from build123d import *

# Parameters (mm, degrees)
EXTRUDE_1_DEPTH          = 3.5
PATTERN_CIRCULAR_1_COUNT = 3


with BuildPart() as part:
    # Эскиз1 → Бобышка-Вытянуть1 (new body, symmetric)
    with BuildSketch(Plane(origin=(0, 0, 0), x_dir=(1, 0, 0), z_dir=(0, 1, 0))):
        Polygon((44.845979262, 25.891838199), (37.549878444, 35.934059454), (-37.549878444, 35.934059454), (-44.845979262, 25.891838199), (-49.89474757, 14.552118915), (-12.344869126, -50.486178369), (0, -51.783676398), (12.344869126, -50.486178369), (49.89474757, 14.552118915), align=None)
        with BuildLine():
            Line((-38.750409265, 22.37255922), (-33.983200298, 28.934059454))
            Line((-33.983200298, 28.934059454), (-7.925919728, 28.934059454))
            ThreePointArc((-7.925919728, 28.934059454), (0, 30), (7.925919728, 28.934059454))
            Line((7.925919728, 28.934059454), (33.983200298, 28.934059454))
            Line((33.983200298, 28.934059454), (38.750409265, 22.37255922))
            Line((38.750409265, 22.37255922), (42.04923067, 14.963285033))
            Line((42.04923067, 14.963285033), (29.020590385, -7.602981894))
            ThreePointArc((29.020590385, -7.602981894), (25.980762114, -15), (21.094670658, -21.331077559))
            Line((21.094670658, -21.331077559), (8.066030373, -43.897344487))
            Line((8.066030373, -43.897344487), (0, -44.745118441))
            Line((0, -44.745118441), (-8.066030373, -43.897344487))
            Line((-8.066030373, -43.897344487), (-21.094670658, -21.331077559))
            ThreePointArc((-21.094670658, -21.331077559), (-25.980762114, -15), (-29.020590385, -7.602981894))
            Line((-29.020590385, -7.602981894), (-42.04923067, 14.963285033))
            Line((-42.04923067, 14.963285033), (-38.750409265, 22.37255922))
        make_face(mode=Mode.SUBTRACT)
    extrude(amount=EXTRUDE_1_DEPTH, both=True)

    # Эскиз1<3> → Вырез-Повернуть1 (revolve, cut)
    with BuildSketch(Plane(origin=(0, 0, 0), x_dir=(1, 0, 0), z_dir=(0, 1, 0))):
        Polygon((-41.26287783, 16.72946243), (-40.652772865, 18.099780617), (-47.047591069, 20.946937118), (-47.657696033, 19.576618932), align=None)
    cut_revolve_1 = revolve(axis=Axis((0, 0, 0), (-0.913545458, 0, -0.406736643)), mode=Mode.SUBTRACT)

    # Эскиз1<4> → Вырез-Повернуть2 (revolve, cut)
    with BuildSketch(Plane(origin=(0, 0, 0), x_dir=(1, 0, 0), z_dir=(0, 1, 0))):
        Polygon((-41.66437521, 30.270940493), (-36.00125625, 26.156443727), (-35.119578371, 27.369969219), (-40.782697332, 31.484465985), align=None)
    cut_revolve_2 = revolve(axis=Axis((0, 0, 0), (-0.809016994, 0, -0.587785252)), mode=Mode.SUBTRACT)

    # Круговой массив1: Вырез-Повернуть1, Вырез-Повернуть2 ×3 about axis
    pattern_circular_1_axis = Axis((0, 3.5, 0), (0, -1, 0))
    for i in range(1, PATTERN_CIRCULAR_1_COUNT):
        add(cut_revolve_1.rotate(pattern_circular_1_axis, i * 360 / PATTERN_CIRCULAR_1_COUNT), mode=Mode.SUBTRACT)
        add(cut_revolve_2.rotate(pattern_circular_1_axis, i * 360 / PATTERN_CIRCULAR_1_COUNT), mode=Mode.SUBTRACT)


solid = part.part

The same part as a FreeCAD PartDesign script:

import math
import FreeCAD as App
import Part
import Sketcher

V = App.Vector
Q = App.Units.Quantity

doc = App.newDocument("Part")
body = doc.addObject("PartDesign::Body", "Body")

# Sketch on XZ plane
sketch1 = body.newObject("Sketcher::SketchObject", "Sketch")
sketch1.AttachmentSupport = (doc.getObject("XZ_Plane"), [""])
sketch1.MapMode = "FlatFace"
sketch1.addGeometry(Part.LineSegment(V(45, -26, 0), V(38, -36, 0)), False)
sketch1.addGeometry(Part.LineSegment(V(38, -36, 0), V(-38, -36, 0)), False)
sketch1.addGeometry(Part.LineSegment(V(-38, -36, 0), V(-45, -26, 0)), False)
sketch1.addGeometry(Part.LineSegment(V(-45, -26, 0), V(-50, -15, 0)), False)
sketch1.addGeometry(Part.LineSegment(V(-50, -15, 0), V(-12, 50, 0)), False)
sketch1.addGeometry(Part.LineSegment(V(-12, 50, 0), V(0, 52, 0)), False)
sketch1.addGeometry(Part.LineSegment(V(0, 52, 0), V(12, 50, 0)), False)
sketch1.addGeometry(Part.LineSegment(V(12, 50, 0), V(50, -15, 0)), False)
sketch1.addGeometry(Part.LineSegment(V(50, -15, 0), V(45, -26, 0)), False)
sketch1.addGeometry(Part.LineSegment(V(-42, -15, 0), V(-39, -22, 0)), False)
sketch1.addGeometry(Part.LineSegment(V(-39, -22, 0), V(-34, -29, 0)), False)
sketch1.addGeometry(Part.LineSegment(V(-34, -29, 0), V(-8, -29, 0)), False)
sketch1.addGeometry(Part.ArcOfCircle(Part.Circle(V(0, 0, 0), V(0, 0, 1), 30), math.radians(-105), math.radians(-75)), False)
sketch1.addGeometry(Part.LineSegment(V(8, -29, 0), V(34, -29, 0)), False)
sketch1.addGeometry(Part.LineSegment(V(34, -29, 0), V(39, -22, 0)), False)
sketch1.addGeometry(Part.LineSegment(V(39, -22, 0), V(42, -15, 0)), False)
sketch1.addGeometry(Part.LineSegment(V(42, -15, 0), V(29, 8, 0)), False)
sketch1.addGeometry(Part.ArcOfCircle(Part.Circle(V(0, 0, 0), V(0, 0, 1), 30), math.radians(15), math.radians(45)), False)
sketch1.addGeometry(Part.LineSegment(V(21, 21, 0), V(8, 44, 0)), False)
sketch1.addGeometry(Part.LineSegment(V(8, 44, 0), V(0, 45, 0)), False)
sketch1.addGeometry(Part.LineSegment(V(0, 45, 0), V(-8, 44, 0)), False)
sketch1.addGeometry(Part.LineSegment(V(-8, 44, 0), V(-21, 21, 0)), False)
sketch1.addGeometry(Part.ArcOfCircle(Part.Circle(V(0, 0, 0), V(0, 0, 1), 30), math.radians(135), math.radians(165)), False)
sketch1.addGeometry(Part.LineSegment(V(-29, 8, 0), V(-42, -15, 0)), False)
sketch1.addConstraint(Sketcher.Constraint("Coincident", 0, 2, 1, 1))
sketch1.addConstraint(Sketcher.Constraint("Coincident", 1, 2, 2, 1))
sketch1.addConstraint(Sketcher.Constraint("Coincident", 2, 2, 3, 1))
sketch1.addConstraint(Sketcher.Constraint("Coincident", 3, 2, 4, 1))
sketch1.addConstraint(Sketcher.Constraint("Coincident", 4, 2, 5, 1))
sketch1.addConstraint(Sketcher.Constraint("Coincident", 5, 2, 6, 1))
sketch1.addConstraint(Sketcher.Constraint("Coincident", 6, 2, 7, 1))
sketch1.addConstraint(Sketcher.Constraint("Coincident", 7, 2, 8, 1))
sketch1.addConstraint(Sketcher.Constraint("Coincident", 8, 2, 0, 1))
sketch1.addConstraint(Sketcher.Constraint("Coincident", 9, 2, 10, 1))
sketch1.addConstraint(Sketcher.Constraint("Coincident", 10, 2, 11, 1))
sketch1.addConstraint(Sketcher.Constraint("Coincident", 11, 2, 12, 1))
sketch1.addConstraint(Sketcher.Constraint("Coincident", 12, 2, 13, 1))
sketch1.addConstraint(Sketcher.Constraint("Coincident", 13, 2, 14, 1))
sketch1.addConstraint(Sketcher.Constraint("Coincident", 14, 2, 15, 1))
sketch1.addConstraint(Sketcher.Constraint("Coincident", 15, 2, 16, 1))
sketch1.addConstraint(Sketcher.Constraint("Coincident", 16, 2, 17, 1))
sketch1.addConstraint(Sketcher.Constraint("Coincident", 17, 2, 18, 1))
sketch1.addConstraint(Sketcher.Constraint("Coincident", 18, 2, 19, 1))
sketch1.addConstraint(Sketcher.Constraint("Coincident", 19, 2, 20, 1))
sketch1.addConstraint(Sketcher.Constraint("Coincident", 20, 2, 21, 1))
sketch1.addConstraint(Sketcher.Constraint("Coincident", 21, 2, 22, 1))
sketch1.addConstraint(Sketcher.Constraint("Coincident", 22, 2, 23, 1))
sketch1.addConstraint(Sketcher.Constraint("Coincident", 23, 2, 9, 1))
sketch1.addConstraint(Sketcher.Constraint("Horizontal", 1))
sketch1.addConstraint(Sketcher.Constraint("Horizontal", 11))
sketch1.addConstraint(Sketcher.Constraint("Horizontal", 13))
sketch1.addConstraint(Sketcher.Constraint("Coincident", 12, 3, -1, 1))
sketch1.addConstraint(Sketcher.Constraint("Coincident", 17, 3, -1, 1))
sketch1.addConstraint(Sketcher.Constraint("Coincident", 22, 3, -1, 1))
sketch1.addConstraint(Sketcher.Constraint("Equal", 12, 17))
sketch1.addConstraint(Sketcher.Constraint("Equal", 17, 22))
sketch1.addConstraint(Sketcher.Constraint("Symmetric", 4, 2, 6, 2, -2))
sketch1.addConstraint(Sketcher.Constraint("Symmetric", 3, 2, 7, 2, -2))
sketch1.addConstraint(Sketcher.Constraint("Symmetric", 2, 2, 8, 2, -2))
sketch1.addConstraint(Sketcher.Constraint("Symmetric", 10, 2, 13, 2, -2))
sketch1.addConstraint(Sketcher.Constraint("Symmetric", 9, 2, 14, 2, -2))
sketch1.addConstraint(Sketcher.Constraint("Symmetric", 18, 2, 20, 2, -2))
sketch1.addConstraint(Sketcher.Constraint("Symmetric", 15, 2, 23, 2, -2))
sketch1.addConstraint(Sketcher.Constraint("PointOnObject", 5, 2, -2))
sketch1.addConstraint(Sketcher.Constraint("PointOnObject", 19, 2, -2))
sketch1.addConstraint(Sketcher.Constraint("Parallel", 3, 9))
sketch1.addConstraint(Sketcher.Constraint("Parallel", 2, 10))
sketch1.addConstraint(Sketcher.Constraint("Parallel", 0, 14))
sketch1.addConstraint(Sketcher.Constraint("Parallel", 7, 16))
sketch1.addConstraint(Sketcher.Constraint("Parallel", 16, 18))
sketch1.addConstraint(Sketcher.Constraint("Parallel", 6, 19))
sketch1.addConstraint(Sketcher.Constraint("Parallel", 4, 21))
sketch1.addConstraint(Sketcher.Constraint("Parallel", 21, 23))
sketch1.addConstraint(Sketcher.Constraint("Equal", 2, 3))
sketch1.addConstraint(Sketcher.Constraint("Equal", 3, 5))
sketch1.addConstraint(Sketcher.Constraint("Equal", 9, 10))
sketch1.addConstraint(Sketcher.Constraint("Equal", 16, 18))
sketch1.addConstraint(Sketcher.Constraint("Equal", 15, 19))
sketch1.addConstraint(Sketcher.Constraint("Radius", 12, Q("30 mm")))
sketch1.addConstraint(Sketcher.Constraint("Angle", 0, Q("-126 deg")))
sketch1.addConstraint(Sketcher.Constraint("Angle", 3, Q("114 deg")))
sketch1.addConstraint(Sketcher.Constraint("Angle", 4, Q("60 deg")))
sketch1.addConstraint(Sketcher.Constraint("Angle", 5, Q("6 deg")))
sketch1.addConstraint(Sketcher.Constraint("DistanceY", 1, 2, 10, 2, Q("7 mm")))
sketch1.addConstraint(Sketcher.Constraint("DistanceX", 11, 1, 11, 2, Q("26.057281 mm")))
sketch1.addConstraint(Sketcher.Constraint("DistanceX", 10, 2, -1, 1, Q("33.9832 mm")))
sketch1.addConstraint(Sketcher.Constraint("DistanceX", 2, 2, 1, 2, Q("7.296101 mm")))
sketch1.addConstraint(Sketcher.Constraint("DistanceY", 1, 2, 9, 2, Q("13.5615 mm")))
sketch1.addConstraint(Sketcher.Constraint("DistanceY", 17, 2, 6, 2, Q("29.155101 mm")))
pad1 = body.newObject("PartDesign::Pad", "Pad")
pad1.Profile = sketch1
pad1.Length = 7
pad1.Midplane = True

# Sketch on XZ plane
sketch2 = body.newObject("Sketcher::SketchObject", "Sketch001")
sketch2.AttachmentSupport = (doc.getObject("XZ_Plane"), [""])
sketch2.MapMode = "FlatFace"
sketch2.addGeometry(Part.LineSegment(V(-41.3, -16.7, 0), V(-40.7, -18.1, 0)), False)
sketch2.addGeometry(Part.LineSegment(V(-40.7, -18.1, 0), V(-47, -20.9, 0)), False)
sketch2.addGeometry(Part.LineSegment(V(-47, -20.9, 0), V(-47.7, -19.6, 0)), False)
sketch2.addGeometry(Part.LineSegment(V(-47.7, -19.6, 0), V(-41.3, -16.7, 0)), False)
sketch2.addGeometry(Part.LineSegment(V(-40.7, -18.1, 0), V(-47, -20.9, 0)), True)  # axis
sketch2.addConstraint(Sketcher.Constraint("Coincident", 0, 2, 1, 1))
sketch2.addConstraint(Sketcher.Constraint("Coincident", 1, 2, 2, 1))
sketch2.addConstraint(Sketcher.Constraint("Coincident", 2, 2, 3, 1))
sketch2.addConstraint(Sketcher.Constraint("Coincident", 3, 2, 0, 1))
sketch2.addConstraint(Sketcher.Constraint("Coincident", 4, 1, 0, 2))
sketch2.addConstraint(Sketcher.Constraint("Coincident", 4, 2, 1, 2))
sketch2.addConstraint(Sketcher.Constraint("Perpendicular", 0, 1))
sketch2.addConstraint(Sketcher.Constraint("Perpendicular", 1, 2))
sketch2.addConstraint(Sketcher.Constraint("Perpendicular", 2, 3))
sketch2.addConstraint(Sketcher.Constraint("Angle", 0, Q("-66 deg")))
sketch2.addConstraint(Sketcher.Constraint("Distance", 1, Q("7 mm")))
sketch2.addConstraint(Sketcher.Constraint("Distance", 0, Q("1.5 mm")))
sketch2.addConstraint(Sketcher.Constraint("DistanceY", 0, 2, -1, 1, Q("18.099781 mm")))
sketch2.addConstraint(Sketcher.Constraint("DistanceX", 1, 2, -1, 1, Q("47.047591 mm")))
groove = body.newObject("PartDesign::Groove", "Groove")
groove.Profile = sketch2
groove.ReferenceAxis = (sketch2, ["Axis0"])
groove.Angle = 360

# Sketch on XZ plane
sketch3 = body.newObject("Sketcher::SketchObject", "Sketch002")
sketch3.AttachmentSupport = (doc.getObject("XZ_Plane"), [""])
sketch3.MapMode = "FlatFace"
sketch3.addGeometry(Part.LineSegment(V(-41.7, -30.3, 0), V(-36, -26.2, 0)), False)
sketch3.addGeometry(Part.LineSegment(V(-36, -26.2, 0), V(-35.1, -27.4, 0)), False)
sketch3.addGeometry(Part.LineSegment(V(-35.1, -27.4, 0), V(-40.8, -31.5, 0)), False)
sketch3.addGeometry(Part.LineSegment(V(-40.8, -31.5, 0), V(-41.7, -30.3, 0)), False)
sketch3.addGeometry(Part.LineSegment(V(-36, -26.2, 0), V(-41.7, -30.3, 0)), True)  # axis
sketch3.addConstraint(Sketcher.Constraint("Coincident", 0, 2, 1, 1))
sketch3.addConstraint(Sketcher.Constraint("Coincident", 1, 2, 2, 1))
sketch3.addConstraint(Sketcher.Constraint("Coincident", 2, 2, 3, 1))
sketch3.addConstraint(Sketcher.Constraint("Coincident", 3, 2, 0, 1))
sketch3.addConstraint(Sketcher.Constraint("Coincident", 4, 1, 0, 2))
sketch3.addConstraint(Sketcher.Constraint("Coincident", 4, 2, 3, 2))
sketch3.addConstraint(Sketcher.Constraint("Perpendicular", 0, 1))
sketch3.addConstraint(Sketcher.Constraint("Perpendicular", 1, 2))
sketch3.addConstraint(Sketcher.Constraint("Perpendicular", 2, 3))
sketch3.addConstraint(Sketcher.Constraint("Angle", 0, Q("36 deg")))
sketch3.addConstraint(Sketcher.Constraint("Distance", 0, Q("7 mm")))
sketch3.addConstraint(Sketcher.Constraint("Distance", 1, Q("1.5 mm")))
sketch3.addConstraint(Sketcher.Constraint("DistanceX", 1, 2, -1, 1, Q("35.119578 mm")))
sketch3.addConstraint(Sketcher.Constraint("DistanceY", 1, 2, -1, 1, Q("27.369969 mm")))
groove2 = body.newObject("PartDesign::Groove", "Groove001")
groove2.Profile = sketch3
groove2.ReferenceAxis = (sketch3, ["Axis0"])
groove2.Angle = 360
doc.recompute()

polarpattern = body.newObject("PartDesign::PolarPattern", "PolarPattern")
polarpattern.Originals = [groove, groove2]
polarpattern.Axis = (doc.getObject("Y_Axis"), [""])
polarpattern.Angle = 360
polarpattern.Occurrences = 3
body.Tip = polarpattern

doc.recompute()
